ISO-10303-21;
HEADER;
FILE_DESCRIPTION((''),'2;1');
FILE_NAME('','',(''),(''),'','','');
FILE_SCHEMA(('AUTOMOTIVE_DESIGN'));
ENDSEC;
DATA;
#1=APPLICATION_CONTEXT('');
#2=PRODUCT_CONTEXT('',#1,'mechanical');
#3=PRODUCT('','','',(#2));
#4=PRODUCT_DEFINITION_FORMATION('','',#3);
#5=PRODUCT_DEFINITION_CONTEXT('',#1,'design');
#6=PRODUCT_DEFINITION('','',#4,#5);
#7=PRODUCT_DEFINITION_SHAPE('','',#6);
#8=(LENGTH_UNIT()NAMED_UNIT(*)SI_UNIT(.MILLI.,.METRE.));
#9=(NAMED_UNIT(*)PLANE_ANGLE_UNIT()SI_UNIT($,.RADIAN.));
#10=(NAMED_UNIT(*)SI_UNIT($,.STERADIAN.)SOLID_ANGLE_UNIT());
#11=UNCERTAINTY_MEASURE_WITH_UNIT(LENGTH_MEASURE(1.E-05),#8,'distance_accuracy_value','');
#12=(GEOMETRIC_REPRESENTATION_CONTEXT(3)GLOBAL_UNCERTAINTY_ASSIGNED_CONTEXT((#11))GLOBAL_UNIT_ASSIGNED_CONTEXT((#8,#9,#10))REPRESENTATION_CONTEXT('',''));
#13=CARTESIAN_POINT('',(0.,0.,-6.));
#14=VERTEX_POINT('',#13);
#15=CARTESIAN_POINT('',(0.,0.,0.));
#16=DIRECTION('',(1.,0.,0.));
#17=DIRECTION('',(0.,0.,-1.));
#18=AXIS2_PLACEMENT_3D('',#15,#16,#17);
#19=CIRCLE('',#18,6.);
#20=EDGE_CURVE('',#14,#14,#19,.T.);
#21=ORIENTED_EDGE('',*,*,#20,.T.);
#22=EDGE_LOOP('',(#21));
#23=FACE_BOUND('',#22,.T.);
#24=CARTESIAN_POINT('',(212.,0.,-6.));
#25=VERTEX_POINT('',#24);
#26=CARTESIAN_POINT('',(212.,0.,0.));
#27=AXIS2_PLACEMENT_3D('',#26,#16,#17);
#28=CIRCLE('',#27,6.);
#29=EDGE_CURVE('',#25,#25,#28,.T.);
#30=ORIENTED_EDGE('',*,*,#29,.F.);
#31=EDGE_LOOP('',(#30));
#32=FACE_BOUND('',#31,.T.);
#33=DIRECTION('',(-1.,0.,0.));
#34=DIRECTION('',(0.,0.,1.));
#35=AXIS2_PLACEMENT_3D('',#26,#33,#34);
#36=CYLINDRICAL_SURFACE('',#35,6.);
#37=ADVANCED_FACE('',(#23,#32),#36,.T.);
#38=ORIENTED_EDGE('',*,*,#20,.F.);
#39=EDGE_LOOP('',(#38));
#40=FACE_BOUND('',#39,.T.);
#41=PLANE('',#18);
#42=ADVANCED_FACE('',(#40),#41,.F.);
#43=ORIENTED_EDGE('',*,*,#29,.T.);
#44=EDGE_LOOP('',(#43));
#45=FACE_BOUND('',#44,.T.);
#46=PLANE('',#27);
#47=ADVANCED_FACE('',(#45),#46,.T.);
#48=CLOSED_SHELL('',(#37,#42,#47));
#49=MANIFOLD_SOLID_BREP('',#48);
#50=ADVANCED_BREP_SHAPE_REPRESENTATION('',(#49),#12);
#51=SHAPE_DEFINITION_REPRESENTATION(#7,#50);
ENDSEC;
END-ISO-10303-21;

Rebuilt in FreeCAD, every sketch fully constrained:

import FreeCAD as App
import Part
import Sketcher

doc = App.newDocument("Part")
params = doc.addObject("Spreadsheet::Sheet", "Params")
for row, (alias, value) in enumerate([
    ("sketch1_diameter", "12 mm"),
    ("pad1_length", "212 mm"),
], start=1):
    params.set(f"A{row}", alias)
    params.set(f"B{row}", "=" + value)
    params.setAlias(f"B{row}", alias)

body = doc.addObject("PartDesign::Body", "Body")

# Sketch on YZ plane
sketch1 = body.newObject("Sketcher::SketchObject", "Sketch")
sketch1.AttachmentSupport = (doc.getObject("YZ_Plane"), [""])
sketch1.MapMode = "FlatFace"
sketch1.addGeometry(Part.Circle(App.Vector(0, 0, 0), App.Vector(0, 0, 1), 6), False)
sketch1.addConstraint([
    Sketcher.Constraint("Coincident", 0, 3, -1, 1),
    Sketcher.Constraint("Diameter", 0, 12.0),
])
sketch1.setExpression("Constraints[1]", "Params.sketch1_diameter")
pad1 = body.newObject("PartDesign::Pad", "Pad")
pad1.Profile = sketch1
pad1.setExpression("Length", "Params.pad1_length")

doc.recompute()
